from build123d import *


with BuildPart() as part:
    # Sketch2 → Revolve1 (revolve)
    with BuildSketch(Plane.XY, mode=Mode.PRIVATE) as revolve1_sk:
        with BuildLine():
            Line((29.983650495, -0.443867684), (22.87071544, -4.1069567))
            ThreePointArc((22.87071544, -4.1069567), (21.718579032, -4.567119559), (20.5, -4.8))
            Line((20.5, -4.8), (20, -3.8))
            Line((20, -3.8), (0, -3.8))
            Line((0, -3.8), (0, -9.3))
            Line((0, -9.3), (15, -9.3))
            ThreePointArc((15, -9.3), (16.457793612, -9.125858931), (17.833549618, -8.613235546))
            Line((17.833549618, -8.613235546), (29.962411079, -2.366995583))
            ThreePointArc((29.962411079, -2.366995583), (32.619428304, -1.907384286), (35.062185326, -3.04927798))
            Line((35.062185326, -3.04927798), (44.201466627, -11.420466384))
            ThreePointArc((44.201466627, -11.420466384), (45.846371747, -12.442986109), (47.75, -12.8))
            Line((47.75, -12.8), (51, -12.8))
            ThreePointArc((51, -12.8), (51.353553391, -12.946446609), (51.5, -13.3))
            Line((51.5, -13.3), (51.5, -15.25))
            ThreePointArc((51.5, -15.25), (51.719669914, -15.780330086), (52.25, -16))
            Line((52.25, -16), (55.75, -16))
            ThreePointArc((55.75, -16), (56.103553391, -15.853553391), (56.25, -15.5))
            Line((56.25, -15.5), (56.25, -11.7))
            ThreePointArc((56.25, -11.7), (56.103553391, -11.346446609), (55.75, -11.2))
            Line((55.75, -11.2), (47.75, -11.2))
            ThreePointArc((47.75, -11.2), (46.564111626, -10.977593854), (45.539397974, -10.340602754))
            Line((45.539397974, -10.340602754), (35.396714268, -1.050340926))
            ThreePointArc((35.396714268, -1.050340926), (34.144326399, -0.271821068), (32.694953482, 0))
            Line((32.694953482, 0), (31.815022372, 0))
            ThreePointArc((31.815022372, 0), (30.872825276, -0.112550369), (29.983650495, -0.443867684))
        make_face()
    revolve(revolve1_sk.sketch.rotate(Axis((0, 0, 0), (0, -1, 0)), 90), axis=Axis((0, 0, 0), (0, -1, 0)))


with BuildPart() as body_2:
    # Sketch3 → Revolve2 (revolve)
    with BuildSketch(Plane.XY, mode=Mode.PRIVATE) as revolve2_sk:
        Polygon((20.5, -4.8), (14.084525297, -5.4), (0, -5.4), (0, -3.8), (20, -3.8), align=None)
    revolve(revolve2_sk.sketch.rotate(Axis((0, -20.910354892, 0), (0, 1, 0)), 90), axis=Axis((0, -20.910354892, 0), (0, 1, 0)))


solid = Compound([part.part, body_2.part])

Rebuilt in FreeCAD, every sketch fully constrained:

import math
import FreeCAD as App
import Part
import Sketcher

doc = App.newDocument("Part")
params = doc.addObject("Spreadsheet::Sheet", "Params")
for row, (alias, value) in enumerate([
    ("sketch1_radius", "4 mm"),
    ("sketch1_radius2", "6.5 mm"),
    ("sketch1_radius3", "4.5 mm"),
    ("sketch1_radius4", "0.5 mm"),
    ("sketch1_width", "20 mm"),
    ("revolution_angle", "360 deg"),
    ("sketch2_width", "20 mm"),
    ("sketch2_height", "1.6 mm"),
    ("revolution2_angle", "360 deg"),
], start=1):
    params.set(f"A{row}", alias)
    params.set(f"B{row}", "=" + value)
    params.setAlias(f"B{row}", alias)

body = doc.addObject("PartDesign::Body", "Body")

# Sketch on XY plane
sketch1 = body.newObject("Sketcher::SketchObject", "Sketch")
sketch1.AttachmentSupport = (doc.getObject("XY_Plane"), [""])
sketch1.MapMode = "FlatFace"
sketch1.addGeometry([
    Part.LineSegment(App.Vector(29.98365, -0.443868, 0), App.Vector(22.870715, -4.106957, 0)),  # 0
    Part.ArcOfCircle(Part.Circle(App.Vector(19.894736, 1.671758, 0), App.Vector(0, 0, 1), 6.5), math.radians(-84.657019), math.radians(-62.751994)),  # 1
    Part.LineSegment(App.Vector(20.5, -4.8, 0), App.Vector(20, -3.8, 0)),  # 2
    Part.LineSegment(App.Vector(20, -3.8, 0), App.Vector(0, -3.8, 0)),  # 3
    Part.LineSegment(App.Vector(0, -3.8, 0), App.Vector(0, -9.3, 0)),  # 4
    Part.LineSegment(App.Vector(0, -9.3, 0), App.Vector(15, -9.3, 0)),  # 5
    Part.ArcOfCircle(Part.Circle(App.Vector(15, -3.111088, 0), App.Vector(0, 0, 1), 6.188912), math.radians(-90), math.radians(-62.751994)),  # 6
    Part.LineSegment(App.Vector(17.83355, -8.613236, 0), App.Vector(29.962411, -2.366996, 0)),  # 7
    Part.ArcOfCircle(Part.Circle(App.Vector(32.022704, -6.367644, 0), App.Vector(0, 0, 1), 4.5), math.radians(47.511657), math.radians(117.248006)),  # 8
    Part.LineSegment(App.Vector(35.062185, -3.049278, 0), App.Vector(44.201467, -11.420466, 0)),  # 9
    Part.ArcOfCircle(Part.Circle(App.Vector(47.75, -7.54634, 0), App.Vector(0, 0, 1), 5.25366), math.radians(-132.488343), math.radians(-90)),  # 10
    Part.LineSegment(App.Vector(47.75, -12.8, 0), App.Vector(51, -12.8, 0)),  # 11
    Part.ArcOfCircle(Part.Circle(App.Vector(51, -13.3, 0), App.Vector(0, 0, 1), 0.5), math.radians(0), math.radians(90)),  # 12
    Part.LineSegment(App.Vector(51.5, -13.3, 0), App.Vector(51.5, -15.25, 0)),  # 13
    Part.ArcOfCircle(Part.Circle(App.Vector(52.25, -15.25, 0), App.Vector(0, 0, 1), 0.75), math.radians(180), math.radians(270)),  # 14
    Part.LineSegment(App.Vector(52.25, -16, 0), App.Vector(55.75, -16, 0)),  # 15
    Part.ArcOfCircle(Part.Circle(App.Vector(55.75, -15.5, 0), App.Vector(0, 0, 1), 0.5), math.radians(-90), math.radians(0)),  # 16
    Part.LineSegment(App.Vector(56.25, -15.5, 0), App.Vector(56.25, -11.7, 0)),  # 17
    Part.ArcOfCircle(Part.Circle(App.Vector(55.75, -11.7, 0), App.Vector(0, 0, 1), 0.5), math.radians(0), math.radians(90)),  # 18
    Part.LineSegment(App.Vector(55.75, -11.2, 0), App.Vector(47.75, -11.2, 0)),  # 19
    Part.ArcOfCircle(Part.Circle(App.Vector(47.75, -7.927168, 0), App.Vector(0, 0, 1), 3.272832), math.radians(-132.488343), math.radians(-90)),  # 20
    Part.LineSegment(App.Vector(45.539398, -10.340603, 0), App.Vector(35.396714, -1.050341, 0)),  # 21
    Part.ArcOfCircle(Part.Circle(App.Vector(32.694953, -4, 0), App.Vector(0, 0, 1), 4), math.radians(47.511657), math.radians(90)),  # 22
    Part.LineSegment(App.Vector(32.694953, 0, 0), App.Vector(31.815022, 0, 0)),  # 23
    Part.ArcOfCircle(Part.Circle(App.Vector(31.815022, -4, 0), App.Vector(0, 0, 1), 4), math.radians(90), math.radians(117.248006)),  # 24
], False)
sketch1.addConstraint([
    Sketcher.Constraint("Tangent", 0, 2, 1, 2),
    Sketcher.Constraint("Coincident", 1, 1, 2, 1),
    Sketcher.Constraint("Coincident", 2, 2, 3, 1),
    Sketcher.Constraint("Coincident", 3, 2, 4, 1),
    Sketcher.Constraint("Coincident", 4, 2, 5, 1),
    Sketcher.Constraint("Tangent", 5, 2, 6, 1),
    Sketcher.Constraint("Tangent", 6, 2, 7, 1),
    Sketcher.Constraint("Tangent", 7, 2, 8, 2),
    Sketcher.Constraint("Tangent", 8, 1, 9, 1),
    Sketcher.Constraint("Tangent", 9, 2, 10, 1),
    Sketcher.Constraint("Tangent", 10, 2, 11, 1),
    Sketcher.Constraint("Tangent", 11, 2, 12, 2),
    Sketcher.Constraint("Tangent", 12, 1, 13, 1),
    Sketcher.Constraint("Tangent", 13, 2, 14, 1),
    Sketcher.Constraint("Tangent", 14, 2, 15, 1),
    Sketcher.Constraint("Tangent", 15, 2, 16, 1),
    Sketcher.Constraint("Tangent", 16, 2, 17, 1),
    Sketcher.Constraint("Tangent", 17, 2, 18, 1),
    Sketcher.Constraint("Tangent", 18, 2, 19, 1),
    Sketcher.Constraint("Tangent", 19, 2, 20, 2),
    Sketcher.Constraint("Tangent", 20, 1, 21, 1),
    Sketcher.Constraint("Tangent", 21, 2, 22, 1),
    Sketcher.Constraint("Tangent", 22, 2, 23, 1),
    Sketcher.Constraint("Tangent", 23, 2, 24, 1),
    Sketcher.Constraint("Tangent", 24, 2, 0, 1),
    Sketcher.Constraint("Horizontal", 3),
    Sketcher.Constraint("Vertical", 4),
    Sketcher.Constraint("Horizontal", 5),
    Sketcher.Constraint("Horizontal", 11),
    Sketcher.Constraint("Vertical", 13),
    Sketcher.Constraint("Horizontal", 15),
    Sketcher.Constraint("Vertical", 17),
    Sketcher.Constraint("Horizontal", 19),
    Sketcher.Constraint("Horizontal", 23),
    Sketcher.Constraint("Equal", 12, 16),
    Sketcher.Constraint("Equal", 16, 18),
    Sketcher.Constraint("Equal", 22, 24),
    Sketcher.Constraint("PointOnObject", 3, 2, -2),
    Sketcher.Constraint("PointOnObject", 22, 2, -1),
    Sketcher.Constraint("Parallel", 0, 7),
    Sketcher.Constraint("Parallel", 9, 21),
    Sketcher.Constraint("Vertical", 10, 3, 20, 3),
    Sketcher.Constraint("Radius", 22, 4.0),
    Sketcher.Constraint("Radius", 1, 6.5),
    Sketcher.Constraint("Radius", 8, 4.5),
    Sketcher.Constraint("Radius", 12, 0.5),
    Sketcher.Constraint("DistanceX", 3, 2, 3, 1, 20.0),
    Sketcher.Constraint("DistanceX", 5, 1, 5, 2, 15.0),
    Sketcher.Constraint("DistanceX", 19, 2, 19, 1, 8.0),
    Sketcher.Constraint("Radius", 14, 0.75),
    Sketcher.Constraint("DistanceX", 15, 1, 15, 2, 3.5),
    Sketcher.Constraint("DistanceY", 4, 2, 4, 1, 5.5),
    Sketcher.Constraint("DistanceY", 17, 1, 17, 2, 3.8),
    Sketcher.Constraint("DistanceX", -1, 1, 12, 3, 51.0),
    Sketcher.Constraint("DistanceY", 14, 2, -1, 1, 16.0),
    Sketcher.Constraint("DistanceY", 1, 1, 2, 2, 1.0),
    Sketcher.Constraint("DistanceY", 13, 2, 13, 1, 1.95),
    Sketcher.Constraint("DistanceX", -1, 1, 1, 1, 20.5),
    Sketcher.Constraint("DistanceY", 1, 1, -1, 1, 4.8),
    Sketcher.Constraint("Radius", 6, 6.188912),
    Sketcher.Constraint("Radius", 10, 5.25366),
    Sketcher.Constraint("Radius", 20, 3.272832),
    Sketcher.Constraint("DistanceX", 23, 2, 23, 1, 0.879931),
    Sketcher.Constraint("Distance", 9, 12.393678),
    Sketcher.Constraint("Distance", 21, 13.754381),
])
sketch1.setExpression("Constraints[42]", "Params.sketch1_radius")
sketch1.setExpression("Constraints[43]", "Params.sketch1_radius2")
sketch1.setExpression("Constraints[44]", "Params.sketch1_radius3")
sketch1.setExpression("Constraints[45]", "Params.sketch1_radius4")
sketch1.setExpression("Constraints[46]", "Params.sketch1_width")
revolution = body.newObject("PartDesign::Revolution", "Revolution")
revolution.Profile = sketch1
revolution.ReferenceAxis = (sketch1, ["V_Axis"])
revolution.setExpression("Angle", "Params.revolution_angle")
body2 = doc.addObject("PartDesign::Body", "Body001")

# Sketch on XY plane
sketch2 = body2.newObject("Sketcher::SketchObject", "Sketch001")
sketch2.AttachmentSupport = (doc.getObject("XY_Plane001"), [""])
sketch2.MapMode = "FlatFace"
sketch2.addGeometry([
    Part.LineSegment(App.Vector(14.084525, -5.4, 0), App.Vector(20.5, -4.8, 0)),  # 0
    Part.LineSegment(App.Vector(20.5, -4.8, 0), App.Vector(20, -3.8, 0)),  # 1
    Part.LineSegment(App.Vector(20, -3.8, 0), App.Vector(0, -3.8, 0)),  # 2
    Part.LineSegment(App.Vector(0, -3.8, 0), App.Vector(0, -5.4, 0)),  # 3
    Part.LineSegment(App.Vector(0, -5.4, 0), App.Vector(14.084525, -5.4, 0)),  # 4
], False)
sketch2.addConstraint([
    Sketcher.Constraint("Coincident", 0, 2, 1, 1),
    Sketcher.Constraint("Coincident", 1, 2, 2, 1),
    Sketcher.Constraint("Coincident", 2, 2, 3, 1),
    Sketcher.Constraint("Coincident", 3, 2, 4, 1),
    Sketcher.Constraint("Coincident", 4, 2, 0, 1),
    Sketcher.Constraint("Horizontal", 2),
    Sketcher.Constraint("Vertical", 3),
    Sketcher.Constraint("Horizontal", 4),
    Sketcher.Constraint("PointOnObject", 2, 2, -2),
    Sketcher.Constraint("DistanceX", 2, 2, 2, 1, 20.0),
    Sketcher.Constraint("DistanceY", 3, 2, 3, 1, 1.6),
    Sketcher.Constraint("DistanceY", 0, 2, 1, 2, 1.0),
    Sketcher.Constraint("DistanceX", -1, 1, 0, 2, 20.5),
    Sketcher.Constraint("DistanceY", 0, 2, -1, 1, 4.8),
    Sketcher.Constraint("Distance", 0, 6.443471),
])
sketch2.setExpression("Constraints[9]", "Params.sketch2_width")
sketch2.setExpression("Constraints[10]", "Params.sketch2_height")
revolution2 = body2.newObject("PartDesign::Revolution", "Revolution001")
revolution2.Profile = sketch2
revolution2.ReferenceAxis = (sketch2, ["V_Axis"])
revolution2.setExpression("Angle", "Params.revolution2_angle")

doc.recompute()
